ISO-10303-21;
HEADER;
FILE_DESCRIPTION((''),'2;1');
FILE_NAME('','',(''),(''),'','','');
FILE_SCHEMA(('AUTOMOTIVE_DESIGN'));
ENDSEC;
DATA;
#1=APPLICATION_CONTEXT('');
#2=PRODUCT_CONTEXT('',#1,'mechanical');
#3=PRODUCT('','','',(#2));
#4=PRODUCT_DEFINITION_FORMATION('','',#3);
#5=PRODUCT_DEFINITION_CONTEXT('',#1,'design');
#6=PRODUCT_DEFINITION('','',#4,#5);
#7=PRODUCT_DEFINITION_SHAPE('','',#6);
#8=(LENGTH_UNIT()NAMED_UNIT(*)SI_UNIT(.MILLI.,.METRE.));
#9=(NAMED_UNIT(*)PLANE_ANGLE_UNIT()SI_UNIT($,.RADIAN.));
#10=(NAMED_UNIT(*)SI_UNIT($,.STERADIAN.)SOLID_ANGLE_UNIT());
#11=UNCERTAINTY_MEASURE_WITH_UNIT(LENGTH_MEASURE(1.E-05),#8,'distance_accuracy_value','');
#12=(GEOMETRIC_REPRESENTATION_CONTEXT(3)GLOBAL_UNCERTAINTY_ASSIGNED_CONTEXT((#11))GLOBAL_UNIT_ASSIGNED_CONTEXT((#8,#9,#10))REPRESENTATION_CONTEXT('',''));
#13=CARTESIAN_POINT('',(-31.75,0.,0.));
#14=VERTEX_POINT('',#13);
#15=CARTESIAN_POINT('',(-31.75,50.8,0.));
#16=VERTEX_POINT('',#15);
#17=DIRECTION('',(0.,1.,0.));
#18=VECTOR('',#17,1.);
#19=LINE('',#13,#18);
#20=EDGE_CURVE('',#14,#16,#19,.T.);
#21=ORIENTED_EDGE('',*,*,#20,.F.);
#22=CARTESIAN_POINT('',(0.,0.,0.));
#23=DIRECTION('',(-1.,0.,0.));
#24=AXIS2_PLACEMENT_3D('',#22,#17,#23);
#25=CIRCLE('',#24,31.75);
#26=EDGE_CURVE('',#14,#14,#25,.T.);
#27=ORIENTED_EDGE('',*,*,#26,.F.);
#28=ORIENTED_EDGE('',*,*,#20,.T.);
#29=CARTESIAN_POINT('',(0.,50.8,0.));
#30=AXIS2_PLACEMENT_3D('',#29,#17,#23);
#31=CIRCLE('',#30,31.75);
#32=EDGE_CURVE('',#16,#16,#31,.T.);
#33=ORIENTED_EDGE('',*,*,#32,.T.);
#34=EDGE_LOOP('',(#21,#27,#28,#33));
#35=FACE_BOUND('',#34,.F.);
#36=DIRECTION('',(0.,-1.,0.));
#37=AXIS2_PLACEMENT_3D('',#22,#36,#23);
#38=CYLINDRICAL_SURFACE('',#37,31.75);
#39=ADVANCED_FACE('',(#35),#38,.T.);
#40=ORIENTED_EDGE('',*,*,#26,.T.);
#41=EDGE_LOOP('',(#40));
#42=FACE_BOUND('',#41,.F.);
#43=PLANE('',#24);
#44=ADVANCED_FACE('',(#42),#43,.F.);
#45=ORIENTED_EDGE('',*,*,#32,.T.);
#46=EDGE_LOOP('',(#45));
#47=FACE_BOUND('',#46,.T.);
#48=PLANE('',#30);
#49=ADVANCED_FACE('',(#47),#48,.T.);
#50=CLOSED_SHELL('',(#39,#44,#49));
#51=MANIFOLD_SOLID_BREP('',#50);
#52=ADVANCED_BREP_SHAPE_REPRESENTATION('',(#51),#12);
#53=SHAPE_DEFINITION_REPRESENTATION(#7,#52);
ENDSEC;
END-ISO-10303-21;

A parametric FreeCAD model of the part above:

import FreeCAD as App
import Part
import Sketcher
from FreeCAD import Vector
Q = App.Units.Quantity

doc = App.newDocument("Part")
body = doc.addObject("PartDesign::Body", "Body")

sketch1 = body.newObject("Sketcher::SketchObject", "Sketch")
sketch1.AttachmentSupport = (doc.getObject("XZ_Plane"), [""])
sketch1.MapMode = "FlatFace"
sketch1.addGeometry(Part.Circle(Vector(0, 0, 0), Vector(0, 0, 1), 32), False)
sketch1.addConstraint(Sketcher.Constraint("Coincident", 0, 3, -1, 1))
sketch1.addConstraint(Sketcher.Constraint("Diameter", 0, Q("2.5 in")))
pad1 = body.newObject("PartDesign::Pad", "Pad")
pad1.Profile = sketch1
pad1.Length = Q("2 in")
pad1.Reversed = True

doc.recompute()
